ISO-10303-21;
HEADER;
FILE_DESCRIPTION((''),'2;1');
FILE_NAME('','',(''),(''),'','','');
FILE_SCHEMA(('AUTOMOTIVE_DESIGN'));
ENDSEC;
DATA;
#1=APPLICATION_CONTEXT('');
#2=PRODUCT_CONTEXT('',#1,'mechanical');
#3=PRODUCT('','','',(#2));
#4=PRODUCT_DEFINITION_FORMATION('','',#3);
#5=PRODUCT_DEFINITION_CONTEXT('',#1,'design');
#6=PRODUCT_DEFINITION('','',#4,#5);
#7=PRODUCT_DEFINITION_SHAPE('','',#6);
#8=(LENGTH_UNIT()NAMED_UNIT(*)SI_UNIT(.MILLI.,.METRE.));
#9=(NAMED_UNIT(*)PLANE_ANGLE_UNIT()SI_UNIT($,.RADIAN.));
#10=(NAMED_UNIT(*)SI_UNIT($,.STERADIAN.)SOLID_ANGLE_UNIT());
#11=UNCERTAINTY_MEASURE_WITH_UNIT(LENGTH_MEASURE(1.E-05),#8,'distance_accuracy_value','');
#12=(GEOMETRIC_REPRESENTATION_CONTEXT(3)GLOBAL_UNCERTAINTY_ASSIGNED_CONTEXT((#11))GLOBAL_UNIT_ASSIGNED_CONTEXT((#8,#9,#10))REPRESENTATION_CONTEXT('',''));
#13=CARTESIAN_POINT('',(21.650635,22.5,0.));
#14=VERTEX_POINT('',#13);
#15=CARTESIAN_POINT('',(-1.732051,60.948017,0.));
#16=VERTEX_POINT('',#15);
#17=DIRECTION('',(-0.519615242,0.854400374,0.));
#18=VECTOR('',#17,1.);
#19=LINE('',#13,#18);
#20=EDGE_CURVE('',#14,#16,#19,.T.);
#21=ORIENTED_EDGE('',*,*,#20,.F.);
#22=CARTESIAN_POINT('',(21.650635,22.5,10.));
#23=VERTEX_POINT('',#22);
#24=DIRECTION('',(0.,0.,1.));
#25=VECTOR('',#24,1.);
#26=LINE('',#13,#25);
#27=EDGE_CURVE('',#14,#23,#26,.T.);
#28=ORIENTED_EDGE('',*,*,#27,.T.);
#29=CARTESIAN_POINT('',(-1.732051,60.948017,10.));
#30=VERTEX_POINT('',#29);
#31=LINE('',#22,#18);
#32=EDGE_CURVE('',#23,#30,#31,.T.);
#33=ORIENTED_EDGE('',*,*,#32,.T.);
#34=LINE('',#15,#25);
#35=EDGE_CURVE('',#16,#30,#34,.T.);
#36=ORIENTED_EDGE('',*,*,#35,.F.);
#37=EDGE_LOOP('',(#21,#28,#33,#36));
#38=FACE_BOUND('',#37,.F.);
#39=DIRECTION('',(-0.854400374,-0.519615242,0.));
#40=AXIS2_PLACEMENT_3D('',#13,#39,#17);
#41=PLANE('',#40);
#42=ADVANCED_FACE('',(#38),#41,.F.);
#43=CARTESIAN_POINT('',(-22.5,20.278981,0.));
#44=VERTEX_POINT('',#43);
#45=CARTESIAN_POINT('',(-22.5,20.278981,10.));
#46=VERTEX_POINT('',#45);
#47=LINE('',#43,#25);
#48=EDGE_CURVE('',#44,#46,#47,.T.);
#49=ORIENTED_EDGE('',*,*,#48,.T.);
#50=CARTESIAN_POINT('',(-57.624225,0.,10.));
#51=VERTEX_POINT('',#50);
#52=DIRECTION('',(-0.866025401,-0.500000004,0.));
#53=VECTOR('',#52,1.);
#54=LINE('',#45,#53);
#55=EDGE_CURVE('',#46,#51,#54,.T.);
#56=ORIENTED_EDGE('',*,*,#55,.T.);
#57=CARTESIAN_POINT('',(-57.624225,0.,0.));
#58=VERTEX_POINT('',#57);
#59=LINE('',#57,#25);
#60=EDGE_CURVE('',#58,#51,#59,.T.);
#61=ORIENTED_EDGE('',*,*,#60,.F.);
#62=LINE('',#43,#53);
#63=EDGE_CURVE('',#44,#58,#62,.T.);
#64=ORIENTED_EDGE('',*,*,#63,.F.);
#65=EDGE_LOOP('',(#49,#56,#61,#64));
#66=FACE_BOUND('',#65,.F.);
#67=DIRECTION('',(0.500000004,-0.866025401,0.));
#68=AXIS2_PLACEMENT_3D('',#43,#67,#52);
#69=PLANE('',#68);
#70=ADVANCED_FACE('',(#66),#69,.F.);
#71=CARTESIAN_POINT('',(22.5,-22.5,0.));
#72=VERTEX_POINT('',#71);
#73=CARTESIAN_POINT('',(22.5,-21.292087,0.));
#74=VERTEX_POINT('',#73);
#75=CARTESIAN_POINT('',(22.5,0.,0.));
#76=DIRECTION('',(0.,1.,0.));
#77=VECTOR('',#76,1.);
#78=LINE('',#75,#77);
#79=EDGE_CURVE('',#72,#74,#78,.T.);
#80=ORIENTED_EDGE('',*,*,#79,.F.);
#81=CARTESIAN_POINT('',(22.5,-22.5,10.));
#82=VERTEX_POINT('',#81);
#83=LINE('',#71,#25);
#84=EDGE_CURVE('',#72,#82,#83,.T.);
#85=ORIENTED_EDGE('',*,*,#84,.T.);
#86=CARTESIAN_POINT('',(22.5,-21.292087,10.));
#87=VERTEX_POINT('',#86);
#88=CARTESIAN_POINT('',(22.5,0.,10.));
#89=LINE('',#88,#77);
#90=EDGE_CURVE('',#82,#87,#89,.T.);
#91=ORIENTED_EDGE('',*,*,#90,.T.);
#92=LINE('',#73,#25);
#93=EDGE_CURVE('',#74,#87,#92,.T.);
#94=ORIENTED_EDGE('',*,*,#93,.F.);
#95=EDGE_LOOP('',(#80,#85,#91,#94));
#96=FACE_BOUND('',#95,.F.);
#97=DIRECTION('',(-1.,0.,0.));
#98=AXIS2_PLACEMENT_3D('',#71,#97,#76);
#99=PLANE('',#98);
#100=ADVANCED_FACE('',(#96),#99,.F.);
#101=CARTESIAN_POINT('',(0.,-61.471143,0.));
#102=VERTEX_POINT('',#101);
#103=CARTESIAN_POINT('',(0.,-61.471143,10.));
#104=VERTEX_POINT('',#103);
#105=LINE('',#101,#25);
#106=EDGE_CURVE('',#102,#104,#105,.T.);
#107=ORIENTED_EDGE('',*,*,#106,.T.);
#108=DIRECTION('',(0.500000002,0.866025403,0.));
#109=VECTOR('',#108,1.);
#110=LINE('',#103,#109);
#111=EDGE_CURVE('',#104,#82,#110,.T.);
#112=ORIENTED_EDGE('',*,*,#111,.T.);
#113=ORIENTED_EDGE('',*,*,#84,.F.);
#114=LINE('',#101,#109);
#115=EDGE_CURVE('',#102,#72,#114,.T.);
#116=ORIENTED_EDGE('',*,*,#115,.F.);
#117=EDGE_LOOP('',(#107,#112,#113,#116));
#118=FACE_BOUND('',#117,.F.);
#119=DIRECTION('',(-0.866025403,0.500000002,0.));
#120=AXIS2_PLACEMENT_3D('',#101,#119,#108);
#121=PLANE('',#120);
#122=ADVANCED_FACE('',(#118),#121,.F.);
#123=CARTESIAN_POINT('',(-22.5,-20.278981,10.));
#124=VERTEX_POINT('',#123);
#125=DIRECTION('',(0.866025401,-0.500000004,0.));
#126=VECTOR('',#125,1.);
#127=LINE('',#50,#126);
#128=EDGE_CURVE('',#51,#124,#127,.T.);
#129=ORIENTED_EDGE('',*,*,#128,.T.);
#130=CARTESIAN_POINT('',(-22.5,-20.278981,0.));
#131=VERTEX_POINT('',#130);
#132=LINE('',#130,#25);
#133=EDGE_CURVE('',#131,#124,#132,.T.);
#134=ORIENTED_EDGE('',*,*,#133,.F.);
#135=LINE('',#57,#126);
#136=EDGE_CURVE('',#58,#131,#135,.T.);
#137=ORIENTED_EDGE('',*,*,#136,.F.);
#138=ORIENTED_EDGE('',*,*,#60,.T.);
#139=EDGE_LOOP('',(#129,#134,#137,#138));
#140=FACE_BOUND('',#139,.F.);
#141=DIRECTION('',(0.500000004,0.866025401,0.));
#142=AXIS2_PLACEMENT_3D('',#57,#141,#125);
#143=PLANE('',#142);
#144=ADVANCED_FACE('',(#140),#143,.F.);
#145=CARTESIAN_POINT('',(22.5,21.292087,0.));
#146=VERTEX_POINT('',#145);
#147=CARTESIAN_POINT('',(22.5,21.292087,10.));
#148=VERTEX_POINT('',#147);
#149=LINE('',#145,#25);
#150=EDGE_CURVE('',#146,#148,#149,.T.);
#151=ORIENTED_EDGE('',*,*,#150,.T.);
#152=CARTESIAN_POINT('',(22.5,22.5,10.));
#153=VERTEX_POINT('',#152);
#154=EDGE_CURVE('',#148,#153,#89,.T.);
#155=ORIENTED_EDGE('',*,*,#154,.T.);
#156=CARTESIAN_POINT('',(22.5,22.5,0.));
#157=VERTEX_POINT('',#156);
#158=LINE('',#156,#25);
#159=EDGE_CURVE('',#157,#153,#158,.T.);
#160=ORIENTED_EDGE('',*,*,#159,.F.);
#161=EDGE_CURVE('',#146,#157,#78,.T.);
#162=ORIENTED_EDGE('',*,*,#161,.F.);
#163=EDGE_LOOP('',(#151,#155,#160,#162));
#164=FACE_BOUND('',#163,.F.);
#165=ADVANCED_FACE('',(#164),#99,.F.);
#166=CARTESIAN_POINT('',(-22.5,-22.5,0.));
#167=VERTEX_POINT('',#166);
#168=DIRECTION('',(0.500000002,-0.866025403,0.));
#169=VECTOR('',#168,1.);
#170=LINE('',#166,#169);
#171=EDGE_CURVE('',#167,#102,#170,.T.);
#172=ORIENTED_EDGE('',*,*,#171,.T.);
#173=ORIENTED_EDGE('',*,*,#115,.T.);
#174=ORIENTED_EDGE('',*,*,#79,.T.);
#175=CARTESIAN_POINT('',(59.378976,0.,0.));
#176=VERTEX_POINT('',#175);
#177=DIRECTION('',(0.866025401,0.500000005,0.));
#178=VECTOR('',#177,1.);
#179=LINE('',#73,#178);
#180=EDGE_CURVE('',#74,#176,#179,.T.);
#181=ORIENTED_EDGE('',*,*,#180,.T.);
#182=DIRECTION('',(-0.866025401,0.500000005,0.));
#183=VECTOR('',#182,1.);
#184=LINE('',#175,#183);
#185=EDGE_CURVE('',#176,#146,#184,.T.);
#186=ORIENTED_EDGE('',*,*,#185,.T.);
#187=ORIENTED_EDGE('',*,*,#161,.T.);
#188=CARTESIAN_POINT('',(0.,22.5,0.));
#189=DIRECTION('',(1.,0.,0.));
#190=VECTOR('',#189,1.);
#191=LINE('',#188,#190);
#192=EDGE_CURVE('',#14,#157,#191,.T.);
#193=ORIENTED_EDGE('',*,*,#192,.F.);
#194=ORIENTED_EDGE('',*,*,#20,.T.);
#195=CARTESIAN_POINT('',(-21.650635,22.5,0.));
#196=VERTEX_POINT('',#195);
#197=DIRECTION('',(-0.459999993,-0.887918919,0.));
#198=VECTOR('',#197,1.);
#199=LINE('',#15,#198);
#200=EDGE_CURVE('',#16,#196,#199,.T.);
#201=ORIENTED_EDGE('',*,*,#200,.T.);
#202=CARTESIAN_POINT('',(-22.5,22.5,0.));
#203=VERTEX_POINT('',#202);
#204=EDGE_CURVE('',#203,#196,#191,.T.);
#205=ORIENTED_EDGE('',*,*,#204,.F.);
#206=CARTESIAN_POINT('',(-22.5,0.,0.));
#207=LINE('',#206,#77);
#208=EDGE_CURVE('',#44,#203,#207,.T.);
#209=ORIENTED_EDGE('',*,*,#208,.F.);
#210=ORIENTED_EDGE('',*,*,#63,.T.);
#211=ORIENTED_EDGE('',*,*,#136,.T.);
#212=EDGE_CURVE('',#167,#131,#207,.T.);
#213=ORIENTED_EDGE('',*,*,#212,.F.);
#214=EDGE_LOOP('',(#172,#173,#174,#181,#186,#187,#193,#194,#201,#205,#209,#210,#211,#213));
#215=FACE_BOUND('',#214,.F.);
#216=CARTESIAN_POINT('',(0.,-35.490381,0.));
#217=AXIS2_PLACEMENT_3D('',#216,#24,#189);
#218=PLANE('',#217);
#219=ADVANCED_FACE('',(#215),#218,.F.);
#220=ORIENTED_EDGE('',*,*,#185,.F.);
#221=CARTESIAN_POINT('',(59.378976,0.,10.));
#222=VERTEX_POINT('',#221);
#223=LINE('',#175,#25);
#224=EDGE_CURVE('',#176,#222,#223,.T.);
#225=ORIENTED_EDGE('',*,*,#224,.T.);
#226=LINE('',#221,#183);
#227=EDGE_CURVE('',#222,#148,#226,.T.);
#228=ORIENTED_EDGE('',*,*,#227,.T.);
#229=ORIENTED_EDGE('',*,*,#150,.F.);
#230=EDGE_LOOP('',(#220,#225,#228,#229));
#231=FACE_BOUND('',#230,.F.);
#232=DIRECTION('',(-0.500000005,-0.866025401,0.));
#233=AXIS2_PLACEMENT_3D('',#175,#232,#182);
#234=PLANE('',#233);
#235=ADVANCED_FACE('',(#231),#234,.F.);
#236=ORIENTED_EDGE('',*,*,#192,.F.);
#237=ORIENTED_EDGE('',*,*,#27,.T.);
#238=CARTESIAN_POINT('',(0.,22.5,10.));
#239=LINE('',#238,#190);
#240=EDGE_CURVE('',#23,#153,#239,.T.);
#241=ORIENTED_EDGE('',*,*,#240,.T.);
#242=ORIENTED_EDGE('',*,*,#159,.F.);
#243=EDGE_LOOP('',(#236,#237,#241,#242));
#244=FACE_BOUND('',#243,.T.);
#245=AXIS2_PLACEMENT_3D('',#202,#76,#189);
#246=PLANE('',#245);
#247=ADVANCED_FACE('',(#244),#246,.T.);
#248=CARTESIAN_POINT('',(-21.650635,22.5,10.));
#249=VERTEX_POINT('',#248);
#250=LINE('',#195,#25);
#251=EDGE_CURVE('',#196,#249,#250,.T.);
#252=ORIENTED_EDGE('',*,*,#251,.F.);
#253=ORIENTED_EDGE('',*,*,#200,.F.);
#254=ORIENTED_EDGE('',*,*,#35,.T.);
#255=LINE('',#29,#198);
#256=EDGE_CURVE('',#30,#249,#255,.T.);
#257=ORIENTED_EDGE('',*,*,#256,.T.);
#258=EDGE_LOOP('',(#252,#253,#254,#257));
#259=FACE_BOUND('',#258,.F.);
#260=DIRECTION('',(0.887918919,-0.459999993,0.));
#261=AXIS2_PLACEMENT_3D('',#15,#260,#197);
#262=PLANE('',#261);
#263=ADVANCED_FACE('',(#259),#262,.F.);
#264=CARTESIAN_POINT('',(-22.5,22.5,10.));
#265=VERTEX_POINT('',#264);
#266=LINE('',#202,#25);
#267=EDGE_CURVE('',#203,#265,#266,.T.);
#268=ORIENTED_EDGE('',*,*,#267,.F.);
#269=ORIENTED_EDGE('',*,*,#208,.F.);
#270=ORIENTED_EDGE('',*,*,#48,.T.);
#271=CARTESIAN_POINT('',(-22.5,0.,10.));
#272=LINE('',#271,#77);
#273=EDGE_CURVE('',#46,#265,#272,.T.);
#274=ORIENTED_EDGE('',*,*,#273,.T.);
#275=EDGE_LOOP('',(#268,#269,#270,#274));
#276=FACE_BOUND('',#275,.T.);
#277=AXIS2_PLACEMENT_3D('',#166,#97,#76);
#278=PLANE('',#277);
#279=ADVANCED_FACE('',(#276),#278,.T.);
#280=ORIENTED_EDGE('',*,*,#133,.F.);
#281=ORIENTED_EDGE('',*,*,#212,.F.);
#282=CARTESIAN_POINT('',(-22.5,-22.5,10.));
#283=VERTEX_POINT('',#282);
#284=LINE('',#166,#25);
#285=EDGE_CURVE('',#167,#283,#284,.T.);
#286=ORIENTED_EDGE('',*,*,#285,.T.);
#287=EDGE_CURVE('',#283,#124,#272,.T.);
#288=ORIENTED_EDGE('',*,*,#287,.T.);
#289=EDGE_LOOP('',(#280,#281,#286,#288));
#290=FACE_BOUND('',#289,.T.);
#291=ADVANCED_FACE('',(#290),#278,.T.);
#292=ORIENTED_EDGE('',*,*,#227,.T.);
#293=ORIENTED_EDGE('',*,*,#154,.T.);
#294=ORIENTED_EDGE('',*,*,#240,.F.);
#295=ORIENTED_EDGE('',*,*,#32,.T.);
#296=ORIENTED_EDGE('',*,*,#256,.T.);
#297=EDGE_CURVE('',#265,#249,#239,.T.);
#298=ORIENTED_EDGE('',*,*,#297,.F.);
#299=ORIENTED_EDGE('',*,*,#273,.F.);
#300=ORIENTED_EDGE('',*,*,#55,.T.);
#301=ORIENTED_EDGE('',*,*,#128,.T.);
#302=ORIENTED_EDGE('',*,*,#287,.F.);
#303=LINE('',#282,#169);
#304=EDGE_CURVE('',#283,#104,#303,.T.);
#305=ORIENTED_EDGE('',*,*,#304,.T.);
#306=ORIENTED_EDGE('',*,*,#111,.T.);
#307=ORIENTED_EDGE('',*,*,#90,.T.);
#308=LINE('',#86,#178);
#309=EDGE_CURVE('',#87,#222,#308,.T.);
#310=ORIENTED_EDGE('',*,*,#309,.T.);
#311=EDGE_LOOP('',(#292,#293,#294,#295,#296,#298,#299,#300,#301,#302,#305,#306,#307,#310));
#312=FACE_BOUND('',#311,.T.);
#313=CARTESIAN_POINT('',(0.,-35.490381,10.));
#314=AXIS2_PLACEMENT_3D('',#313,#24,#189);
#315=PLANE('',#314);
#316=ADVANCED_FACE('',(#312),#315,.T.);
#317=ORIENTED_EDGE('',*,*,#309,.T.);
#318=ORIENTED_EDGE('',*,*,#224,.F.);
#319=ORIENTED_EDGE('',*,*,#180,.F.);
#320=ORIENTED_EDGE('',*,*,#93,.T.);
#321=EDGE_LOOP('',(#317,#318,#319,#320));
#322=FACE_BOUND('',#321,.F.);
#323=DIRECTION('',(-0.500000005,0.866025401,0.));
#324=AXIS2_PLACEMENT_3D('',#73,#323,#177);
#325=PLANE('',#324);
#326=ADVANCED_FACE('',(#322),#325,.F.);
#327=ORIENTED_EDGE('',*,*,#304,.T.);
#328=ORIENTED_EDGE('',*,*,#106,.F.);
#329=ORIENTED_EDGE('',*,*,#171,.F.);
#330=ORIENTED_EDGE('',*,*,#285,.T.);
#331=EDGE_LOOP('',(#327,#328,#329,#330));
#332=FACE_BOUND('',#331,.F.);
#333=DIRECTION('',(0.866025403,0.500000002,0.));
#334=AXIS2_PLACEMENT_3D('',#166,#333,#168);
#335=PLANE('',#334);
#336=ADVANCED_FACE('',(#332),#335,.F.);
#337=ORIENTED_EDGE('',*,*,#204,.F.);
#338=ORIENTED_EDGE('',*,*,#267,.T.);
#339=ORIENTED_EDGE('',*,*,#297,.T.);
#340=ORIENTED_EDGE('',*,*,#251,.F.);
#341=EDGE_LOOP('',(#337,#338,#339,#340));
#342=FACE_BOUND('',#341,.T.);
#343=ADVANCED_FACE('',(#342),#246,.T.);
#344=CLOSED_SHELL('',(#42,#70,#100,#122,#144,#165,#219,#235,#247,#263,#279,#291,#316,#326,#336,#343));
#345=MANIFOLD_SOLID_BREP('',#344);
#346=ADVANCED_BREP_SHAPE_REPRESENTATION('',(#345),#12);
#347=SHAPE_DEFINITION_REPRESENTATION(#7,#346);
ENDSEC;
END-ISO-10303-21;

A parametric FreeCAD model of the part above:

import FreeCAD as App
import Part
import Sketcher
from FreeCAD import Vector
Q = App.Units.Quantity

doc = App.newDocument("Part")
body = doc.addObject("PartDesign::Body", "Body")

# Sketch on XY plane
sketch1 = body.newObject("Sketcher::SketchObject", "Sketch")
sketch1.AttachmentSupport = (doc.getObject("XY_Plane"), [""])
sketch1.MapMode = "FlatFace"
sketch1.addGeometry([
    Part.LineSegment(Vector(-22, 22, 0), Vector(-22, -22, 0)),
    Part.LineSegment(Vector(-22, -22, 0), Vector(22, -22, 0)),
    Part.LineSegment(Vector(22, -22, 0), Vector(22, 22, 0)),
    Part.LineSegment(Vector(22, 22, 0), Vector(-22, 22, 0)),
], False)
sketch1.addConstraint([
    Sketcher.Constraint("Coincident", 0, 2, 1, 1),
    Sketcher.Constraint("Coincident", 1, 2, 2, 1),
    Sketcher.Constraint("Coincident", 2, 2, 3, 1),
    Sketcher.Constraint("Coincident", 3, 2, 0, 1),
    Sketcher.Constraint("Vertical", 0),
    Sketcher.Constraint("Horizontal", 1),
    Sketcher.Constraint("Vertical", 2),
    Sketcher.Constraint("Horizontal", 3),
    Sketcher.Constraint("Symmetric", 0, 2, 2, 2, -1, 1),
    Sketcher.Constraint("Equal", 3, 0),
    Sketcher.Constraint("DistanceX", 1, 1, 1, 2, 45.0),
])
pad1 = body.newObject("PartDesign::Pad", "Pad")
pad1.Profile = sketch1
pad1.Length = 10

# Sketch on XY plane
sketch2 = body.newObject("Sketcher::SketchObject", "Sketch001")
sketch2.AttachmentSupport = (doc.getObject("XY_Plane"), [""])
sketch2.MapMode = "FlatFace"
sketch2.addGeometry([
    Part.LineSegment(Vector(-22, 22, 0), Vector(22, 22, 0)),
    Part.LineSegment(Vector(22, 22, 0), Vector(-2, 61, 0)),
    Part.LineSegment(Vector(-2, 61, 0), Vector(-22, 22, 0)),
], False)
sketch2.addConstraint([
    Sketcher.Constraint("Coincident", 0, 2, 1, 1),
    Sketcher.Constraint("Coincident", 1, 2, 2, 1),
    Sketcher.Constraint("Coincident", 2, 2, 0, 1),
    Sketcher.Constraint("Horizontal", 0),
    Sketcher.Constraint("Distance", 1, 45.0),
    Sketcher.Constraint("DistanceY", -1, 1, 0, 2, 22.5),
    Sketcher.Constraint("DistanceX", 0, 1, 0, 2, 43.30127),
    Sketcher.Constraint("Distance", 2, 43.30127),
    Sketcher.Constraint("DistanceX", 1, 2, -1, 1, 1.732051),
])
pad2 = body.newObject("PartDesign::Pad", "Pad001")
pad2.Profile = sketch2
pad2.Length = 10

# Sketch on XY plane
sketch3 = body.newObject("Sketcher::SketchObject", "Sketch002")
sketch3.AttachmentSupport = (doc.getObject("XY_Plane"), [""])
sketch3.MapMode = "FlatFace"
sketch3.addGeometry([
    Part.LineSegment(Vector(22, -21, 0), Vector(59, 0, 0)),
    Part.LineSegment(Vector(59, 0, 0), Vector(22, 21, 0)),
    Part.LineSegment(Vector(22, 21, 0), Vector(22, -21, 0)),
], False)
sketch3.addConstraint([
    Sketcher.Constraint("Coincident", 0, 2, 1, 1),
    Sketcher.Constraint("Coincident", 1, 2, 2, 1),
    Sketcher.Constraint("Coincident", 2, 2, 0, 1),
    Sketcher.Constraint("Vertical", 2),
    Sketcher.Constraint("PointOnObject", 0, 2, -1),
    Sketcher.Constraint("Equal", 0, 1),
    Sketcher.Constraint("Angle", 0, Q("30 deg")),
    Sketcher.Constraint("DistanceX", -1, 1, 1, 2, 22.5),
    Sketcher.Constraint("DistanceY", 2, 2, 2, 1, 42.584174),
])
pad3 = body.newObject("PartDesign::Pad", "Pad002")
pad3.Profile = sketch3
pad3.Length = 10

# Sketch on XY plane
sketch4 = body.newObject("Sketcher::SketchObject", "Sketch003")
sketch4.AttachmentSupport = (doc.getObject("XY_Plane"), [""])
sketch4.MapMode = "FlatFace"
sketch4.addGeometry([
    Part.LineSegment(Vector(-22, -22, 0), Vector(0, -61, 0)),
    Part.LineSegment(Vector(0, -61, 0), Vector(22, -22, 0)),
    Part.LineSegment(Vector(22, -22, 0), Vector(-22, -22, 0)),
], False)
sketch4.addConstraint([
    Sketcher.Constraint("Coincident", 0, 2, 1, 1),
    Sketcher.Constraint("Coincident", 1, 2, 2, 1),
    Sketcher.Constraint("Coincident", 2, 2, 0, 1),
    Sketcher.Constraint("Horizontal", 2),
    Sketcher.Constraint("PointOnObject", 0, 2, -2),
    Sketcher.Constraint("Equal", 0, 1),
    Sketcher.Constraint("DistanceX", 2, 2, 2, 1, 45.0),
    Sketcher.Constraint("Angle", 0, Q("-60 deg")),
    Sketcher.Constraint("DistanceY", 1, 2, -1, 1, 22.5),
])
pad4 = body.newObject("PartDesign::Pad", "Pad003")
pad4.Profile = sketch4
pad4.Length = 10

# Sketch on XY plane
sketch5 = body.newObject("Sketcher::SketchObject", "Sketch004")
sketch5.AttachmentSupport = (doc.getObject("XY_Plane"), [""])
sketch5.MapMode = "FlatFace"
sketch5.addGeometry([
    Part.LineSegment(Vector(-22, 20, 0), Vector(-58, 0, 0)),
    Part.LineSegment(Vector(-58, 0, 0), Vector(-22, -20, 0)),
    Part.LineSegment(Vector(-22, -20, 0), Vector(-22, 20, 0)),
], False)
sketch5.addConstraint([
    Sketcher.Constraint("Coincident", 0, 2, 1, 1),
    Sketcher.Constraint("Coincident", 1, 2, 2, 1),
    Sketcher.Constraint("Coincident", 2, 2, 0, 1),
    Sketcher.Constraint("Vertical", 2),
    Sketcher.Constraint("PointOnObject", 0, 2, -1),
    Sketcher.Constraint("Equal", 0, 1),
    Sketcher.Constraint("Angle", 0, Q("-150 deg")),
    Sketcher.Constraint("DistanceX", 1, 2, -1, 1, 22.5),
    Sketcher.Constraint("Distance", 0, 40.557962),
])
pad5 = body.newObject("PartDesign::Pad", "Pad004")
pad5.Profile = sketch5
pad5.Length = 10

doc.recompute()
